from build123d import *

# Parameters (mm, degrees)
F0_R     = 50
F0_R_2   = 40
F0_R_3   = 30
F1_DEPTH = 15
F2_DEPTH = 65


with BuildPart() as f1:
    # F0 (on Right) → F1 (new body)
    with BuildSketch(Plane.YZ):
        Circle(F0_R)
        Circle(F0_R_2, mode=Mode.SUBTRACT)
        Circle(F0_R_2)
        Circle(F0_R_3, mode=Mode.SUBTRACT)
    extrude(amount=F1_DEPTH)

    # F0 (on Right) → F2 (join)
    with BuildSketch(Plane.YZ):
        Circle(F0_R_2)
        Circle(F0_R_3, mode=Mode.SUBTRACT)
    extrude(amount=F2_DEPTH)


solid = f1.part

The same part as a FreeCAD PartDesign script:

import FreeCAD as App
import Part
import Sketcher

doc = App.newDocument("Part")
body = doc.addObject("PartDesign::Body", "Body")

sketch1 = doc.addObject("Sketcher::SketchObject", "Sketch")
body.addObject(sketch1)
sketch1.AttachmentSupport = (doc.YZ_Plane, [""])
sketch1.MapMode = "FlatFace"
sketch1.addGeometry([
    Part.Circle(App.Vector(0, 0, 0), App.Vector(0, 0, 1), 50),
    Part.Circle(App.Vector(0, 0, 0), App.Vector(0, 0, 1), 30),
], False)
sketch1.addConstraint([
    Sketcher.Constraint("Coincident", 0, 3, -1, 1),
    Sketcher.Constraint("Coincident", 1, 3, -1, 1),
    Sketcher.Constraint("Diameter", 0, 100.0),
    Sketcher.Constraint("Diameter", 1, 60.0),
])
pad1 = doc.addObject("PartDesign::Pad", "Pad")
body.addObject(pad1)
pad1.Profile = sketch1
pad1.Length = 15

sketch2 = doc.addObject("Sketcher::SketchObject", "Sketch001")
body.addObject(sketch2)
sketch2.AttachmentSupport = (doc.YZ_Plane, [""])
sketch2.MapMode = "FlatFace"
sketch2.addGeometry([
    Part.Circle(App.Vector(0, 0, 0), App.Vector(0, 0, 1), 40),
    Part.Circle(App.Vector(0, 0, 0), App.Vector(0, 0, 1), 30),
], False)
sketch2.addConstraint([
    Sketcher.Constraint("Coincident", 0, 3, -1, 1),
    Sketcher.Constraint("Coincident", 1, 3, -1, 1),
    Sketcher.Constraint("Diameter", 0, 80.0),
    Sketcher.Constraint("Diameter", 1, 60.0),
])
pad2 = doc.addObject("PartDesign::Pad", "Pad001")
body.addObject(pad2)
pad2.Profile = sketch2
pad2.Length = 65

doc.recompute()
